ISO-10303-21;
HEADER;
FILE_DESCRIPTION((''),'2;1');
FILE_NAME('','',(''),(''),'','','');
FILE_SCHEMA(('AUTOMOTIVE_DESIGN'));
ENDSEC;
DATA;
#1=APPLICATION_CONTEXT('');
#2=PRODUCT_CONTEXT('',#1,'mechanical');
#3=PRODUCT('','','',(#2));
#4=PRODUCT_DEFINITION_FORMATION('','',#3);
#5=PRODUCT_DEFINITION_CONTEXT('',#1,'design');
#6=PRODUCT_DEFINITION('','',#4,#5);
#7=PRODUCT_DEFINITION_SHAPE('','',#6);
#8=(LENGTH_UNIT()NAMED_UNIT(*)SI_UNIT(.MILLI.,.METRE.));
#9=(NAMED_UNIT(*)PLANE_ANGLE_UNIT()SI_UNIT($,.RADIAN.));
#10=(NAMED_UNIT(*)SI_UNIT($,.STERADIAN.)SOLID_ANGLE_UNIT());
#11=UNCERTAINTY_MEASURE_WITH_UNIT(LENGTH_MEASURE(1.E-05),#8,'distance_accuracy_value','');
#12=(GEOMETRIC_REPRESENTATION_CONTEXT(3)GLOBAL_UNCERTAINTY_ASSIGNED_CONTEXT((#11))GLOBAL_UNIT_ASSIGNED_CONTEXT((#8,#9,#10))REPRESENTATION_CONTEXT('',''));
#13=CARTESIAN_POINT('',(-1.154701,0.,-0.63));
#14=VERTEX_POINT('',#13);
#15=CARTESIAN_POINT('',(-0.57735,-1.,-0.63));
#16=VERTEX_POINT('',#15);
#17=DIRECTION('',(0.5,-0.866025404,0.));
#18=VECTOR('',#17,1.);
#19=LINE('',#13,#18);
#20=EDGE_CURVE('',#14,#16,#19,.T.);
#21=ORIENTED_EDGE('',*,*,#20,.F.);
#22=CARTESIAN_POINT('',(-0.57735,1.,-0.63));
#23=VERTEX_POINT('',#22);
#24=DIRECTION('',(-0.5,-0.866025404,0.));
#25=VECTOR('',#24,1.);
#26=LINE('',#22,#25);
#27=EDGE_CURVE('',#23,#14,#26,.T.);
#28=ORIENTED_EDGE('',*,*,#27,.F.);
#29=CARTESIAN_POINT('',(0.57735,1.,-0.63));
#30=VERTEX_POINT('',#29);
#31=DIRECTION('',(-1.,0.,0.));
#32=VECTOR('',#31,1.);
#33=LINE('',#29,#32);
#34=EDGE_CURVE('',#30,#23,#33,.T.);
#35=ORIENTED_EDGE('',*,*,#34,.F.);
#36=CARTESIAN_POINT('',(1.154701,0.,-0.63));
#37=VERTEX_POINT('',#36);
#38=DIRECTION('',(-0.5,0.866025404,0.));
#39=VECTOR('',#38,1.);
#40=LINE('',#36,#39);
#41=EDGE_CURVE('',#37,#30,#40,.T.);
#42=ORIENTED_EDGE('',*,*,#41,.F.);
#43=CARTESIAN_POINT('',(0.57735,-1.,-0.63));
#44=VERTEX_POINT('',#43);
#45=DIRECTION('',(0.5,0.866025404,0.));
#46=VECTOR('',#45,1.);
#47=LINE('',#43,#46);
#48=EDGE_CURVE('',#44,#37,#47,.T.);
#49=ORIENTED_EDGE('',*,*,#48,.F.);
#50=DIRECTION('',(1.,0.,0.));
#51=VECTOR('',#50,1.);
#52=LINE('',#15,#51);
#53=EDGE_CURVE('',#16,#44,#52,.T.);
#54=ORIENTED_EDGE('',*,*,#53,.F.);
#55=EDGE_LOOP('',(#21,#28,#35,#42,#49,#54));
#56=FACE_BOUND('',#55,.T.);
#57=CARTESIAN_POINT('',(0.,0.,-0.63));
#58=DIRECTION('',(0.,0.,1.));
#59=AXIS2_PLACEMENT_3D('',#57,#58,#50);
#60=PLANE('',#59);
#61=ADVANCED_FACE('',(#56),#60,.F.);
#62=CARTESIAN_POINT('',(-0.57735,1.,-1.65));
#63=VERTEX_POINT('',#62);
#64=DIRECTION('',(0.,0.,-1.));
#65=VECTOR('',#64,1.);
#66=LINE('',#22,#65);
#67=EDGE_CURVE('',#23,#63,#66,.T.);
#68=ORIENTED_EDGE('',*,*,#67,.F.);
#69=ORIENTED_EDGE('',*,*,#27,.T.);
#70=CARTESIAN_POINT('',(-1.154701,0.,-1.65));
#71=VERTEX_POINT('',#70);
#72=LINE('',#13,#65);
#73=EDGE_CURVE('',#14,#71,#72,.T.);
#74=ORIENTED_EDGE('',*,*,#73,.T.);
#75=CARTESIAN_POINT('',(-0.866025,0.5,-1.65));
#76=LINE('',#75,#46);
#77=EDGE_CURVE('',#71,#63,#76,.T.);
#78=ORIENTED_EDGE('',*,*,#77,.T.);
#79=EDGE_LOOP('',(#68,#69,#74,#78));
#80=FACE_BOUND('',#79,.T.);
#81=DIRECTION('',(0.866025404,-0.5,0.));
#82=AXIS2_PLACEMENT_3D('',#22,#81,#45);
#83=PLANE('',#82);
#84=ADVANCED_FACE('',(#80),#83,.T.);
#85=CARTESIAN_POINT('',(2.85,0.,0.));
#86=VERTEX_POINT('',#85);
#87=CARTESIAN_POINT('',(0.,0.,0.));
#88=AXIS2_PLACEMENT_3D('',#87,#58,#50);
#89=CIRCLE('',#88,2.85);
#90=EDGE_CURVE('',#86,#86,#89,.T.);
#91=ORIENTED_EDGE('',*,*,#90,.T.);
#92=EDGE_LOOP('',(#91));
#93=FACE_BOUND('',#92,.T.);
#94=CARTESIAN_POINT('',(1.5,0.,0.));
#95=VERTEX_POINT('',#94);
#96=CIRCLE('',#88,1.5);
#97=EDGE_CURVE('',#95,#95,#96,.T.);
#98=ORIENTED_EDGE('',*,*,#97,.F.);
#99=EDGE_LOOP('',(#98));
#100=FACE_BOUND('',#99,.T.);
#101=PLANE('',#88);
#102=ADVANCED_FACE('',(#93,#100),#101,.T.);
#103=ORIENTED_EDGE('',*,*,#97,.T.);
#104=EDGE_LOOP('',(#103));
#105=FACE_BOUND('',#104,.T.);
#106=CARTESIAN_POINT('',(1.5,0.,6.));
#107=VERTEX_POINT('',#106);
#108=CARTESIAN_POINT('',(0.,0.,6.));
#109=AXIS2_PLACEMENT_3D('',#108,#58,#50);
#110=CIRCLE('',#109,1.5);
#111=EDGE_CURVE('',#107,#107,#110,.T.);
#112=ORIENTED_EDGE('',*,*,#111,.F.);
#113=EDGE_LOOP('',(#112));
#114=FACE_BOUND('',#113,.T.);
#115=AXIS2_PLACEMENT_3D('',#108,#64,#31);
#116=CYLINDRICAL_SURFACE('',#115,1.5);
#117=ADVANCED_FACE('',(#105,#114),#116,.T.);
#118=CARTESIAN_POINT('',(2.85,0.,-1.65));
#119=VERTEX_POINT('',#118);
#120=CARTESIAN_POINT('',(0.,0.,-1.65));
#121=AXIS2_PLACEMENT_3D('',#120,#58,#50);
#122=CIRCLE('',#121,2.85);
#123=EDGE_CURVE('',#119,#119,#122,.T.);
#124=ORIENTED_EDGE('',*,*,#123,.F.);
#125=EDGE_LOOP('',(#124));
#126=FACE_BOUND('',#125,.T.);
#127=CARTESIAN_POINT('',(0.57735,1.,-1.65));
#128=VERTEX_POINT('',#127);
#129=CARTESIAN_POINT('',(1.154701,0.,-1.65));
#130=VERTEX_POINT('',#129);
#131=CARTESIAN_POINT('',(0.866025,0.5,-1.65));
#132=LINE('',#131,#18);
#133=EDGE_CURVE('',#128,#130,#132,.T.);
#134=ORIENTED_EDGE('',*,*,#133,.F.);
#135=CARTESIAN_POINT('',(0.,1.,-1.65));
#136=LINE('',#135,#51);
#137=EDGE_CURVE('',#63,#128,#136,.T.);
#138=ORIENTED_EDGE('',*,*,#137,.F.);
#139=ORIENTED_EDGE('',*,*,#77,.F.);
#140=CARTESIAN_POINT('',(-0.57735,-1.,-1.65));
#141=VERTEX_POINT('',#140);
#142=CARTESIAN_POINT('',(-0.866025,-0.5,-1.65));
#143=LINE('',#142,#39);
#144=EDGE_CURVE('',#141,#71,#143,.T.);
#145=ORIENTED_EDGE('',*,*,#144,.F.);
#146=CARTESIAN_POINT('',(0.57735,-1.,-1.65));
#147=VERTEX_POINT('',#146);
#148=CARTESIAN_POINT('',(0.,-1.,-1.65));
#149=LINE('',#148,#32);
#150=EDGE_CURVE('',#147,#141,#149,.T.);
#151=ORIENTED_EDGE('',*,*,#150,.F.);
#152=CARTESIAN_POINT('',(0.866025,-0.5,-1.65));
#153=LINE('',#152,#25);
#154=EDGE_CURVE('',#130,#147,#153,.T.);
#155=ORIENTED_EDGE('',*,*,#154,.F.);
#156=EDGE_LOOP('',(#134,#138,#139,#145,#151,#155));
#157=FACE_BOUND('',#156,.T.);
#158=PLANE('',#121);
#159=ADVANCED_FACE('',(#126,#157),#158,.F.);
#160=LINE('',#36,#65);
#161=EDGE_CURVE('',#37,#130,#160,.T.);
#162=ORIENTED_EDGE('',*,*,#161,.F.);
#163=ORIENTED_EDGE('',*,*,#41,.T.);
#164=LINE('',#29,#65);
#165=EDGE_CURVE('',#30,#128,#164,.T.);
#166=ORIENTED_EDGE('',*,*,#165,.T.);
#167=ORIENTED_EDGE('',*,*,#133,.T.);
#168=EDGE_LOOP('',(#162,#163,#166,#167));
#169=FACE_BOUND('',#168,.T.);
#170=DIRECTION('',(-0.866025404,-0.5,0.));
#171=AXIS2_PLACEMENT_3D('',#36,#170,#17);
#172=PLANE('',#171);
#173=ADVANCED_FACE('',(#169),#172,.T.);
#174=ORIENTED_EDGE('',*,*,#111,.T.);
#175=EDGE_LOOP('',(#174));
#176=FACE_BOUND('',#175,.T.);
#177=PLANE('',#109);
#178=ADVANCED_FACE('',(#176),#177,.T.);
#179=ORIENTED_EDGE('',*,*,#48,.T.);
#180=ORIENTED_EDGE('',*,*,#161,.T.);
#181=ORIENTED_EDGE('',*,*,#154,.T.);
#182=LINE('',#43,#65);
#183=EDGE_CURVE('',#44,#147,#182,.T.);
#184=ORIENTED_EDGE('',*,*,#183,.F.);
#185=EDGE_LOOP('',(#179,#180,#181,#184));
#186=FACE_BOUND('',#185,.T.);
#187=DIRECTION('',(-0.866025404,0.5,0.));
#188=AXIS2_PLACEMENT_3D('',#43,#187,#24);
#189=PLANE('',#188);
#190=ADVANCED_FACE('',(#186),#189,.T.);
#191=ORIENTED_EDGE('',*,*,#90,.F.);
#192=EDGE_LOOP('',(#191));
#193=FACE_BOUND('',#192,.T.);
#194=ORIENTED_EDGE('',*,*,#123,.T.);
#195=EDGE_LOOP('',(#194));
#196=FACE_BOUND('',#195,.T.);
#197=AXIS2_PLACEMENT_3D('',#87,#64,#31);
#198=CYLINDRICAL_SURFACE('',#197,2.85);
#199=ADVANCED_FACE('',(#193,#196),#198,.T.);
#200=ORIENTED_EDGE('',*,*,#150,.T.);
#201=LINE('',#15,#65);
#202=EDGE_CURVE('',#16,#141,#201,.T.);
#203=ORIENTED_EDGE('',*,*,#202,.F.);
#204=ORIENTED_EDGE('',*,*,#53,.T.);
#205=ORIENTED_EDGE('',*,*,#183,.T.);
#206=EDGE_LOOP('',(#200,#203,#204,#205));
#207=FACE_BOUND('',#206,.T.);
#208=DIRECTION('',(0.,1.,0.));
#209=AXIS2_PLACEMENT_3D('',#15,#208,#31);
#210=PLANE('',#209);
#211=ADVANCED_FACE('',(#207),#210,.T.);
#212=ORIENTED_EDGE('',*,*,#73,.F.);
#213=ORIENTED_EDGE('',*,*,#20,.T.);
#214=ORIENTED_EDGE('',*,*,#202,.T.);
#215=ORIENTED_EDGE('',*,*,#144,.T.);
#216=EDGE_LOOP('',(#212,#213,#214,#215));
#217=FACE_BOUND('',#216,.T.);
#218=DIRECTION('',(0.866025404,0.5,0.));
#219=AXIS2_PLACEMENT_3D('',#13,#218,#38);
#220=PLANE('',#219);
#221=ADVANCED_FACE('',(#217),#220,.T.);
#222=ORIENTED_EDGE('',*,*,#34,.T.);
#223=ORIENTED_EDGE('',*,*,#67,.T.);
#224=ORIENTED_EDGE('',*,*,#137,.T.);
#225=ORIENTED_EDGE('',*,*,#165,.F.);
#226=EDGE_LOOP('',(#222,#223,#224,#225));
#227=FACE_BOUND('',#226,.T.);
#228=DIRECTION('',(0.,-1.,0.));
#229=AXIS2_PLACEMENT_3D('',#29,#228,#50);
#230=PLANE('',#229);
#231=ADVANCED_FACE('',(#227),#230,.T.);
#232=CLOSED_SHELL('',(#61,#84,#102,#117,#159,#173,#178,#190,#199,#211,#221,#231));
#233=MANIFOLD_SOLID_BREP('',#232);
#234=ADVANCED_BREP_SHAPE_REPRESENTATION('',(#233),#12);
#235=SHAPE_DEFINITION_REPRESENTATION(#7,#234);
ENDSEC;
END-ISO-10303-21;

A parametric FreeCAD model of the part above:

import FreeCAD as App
import Part
import Sketcher

V = App.Vector
Q = App.Units.Quantity

doc = App.newDocument("Part")
body = doc.addObject("PartDesign::Body", "Body")

sketch1 = body.newObject("Sketcher::SketchObject", "Sketch")
sketch1.AttachmentSupport = (doc.getObject("XY_Plane"), [""])
sketch1.MapMode = "FlatFace"
sketch1.AttachmentOffset = App.Placement(V(0, 0, -1.65), App.Rotation())
sketch1.addGeometry(Part.Circle(V(0, 0, 0), V(0, 0, 1), 2.9), False)
sketch1.addConstraint([
    Sketcher.Constraint("Coincident", 0, 3, -1, 1),
    Sketcher.Constraint("Diameter", 0, 5.7),
])
pad1 = body.newObject("PartDesign::Pad", "Pad")
pad1.Profile = sketch1
pad1.Length = 1.65

sketch2 = body.newObject("Sketcher::SketchObject", "Sketch001")
sketch2.AttachmentSupport = (doc.getObject("XY_Plane"), [""])
sketch2.MapMode = "FlatFace"
sketch2.addGeometry(Part.Circle(V(0, 0, 0), V(0, 0, 1), 1.5), False)
sketch2.addConstraint([
    Sketcher.Constraint("Coincident", 0, 3, -1, 1),
    Sketcher.Constraint("Diameter", 0, 3.0),
])
pad2 = body.newObject("PartDesign::Pad", "Pad001")
pad2.Profile = sketch2
pad2.Length = 6

sketch3 = body.newObject("Sketcher::SketchObject", "Sketch002")
sketch3.AttachmentSupport = (doc.getObject("XY_Plane"), [""])
sketch3.MapMode = "FlatFace"
sketch3.AttachmentOffset = App.Placement(V(0, 0, -1.75), App.Rotation())
sketch3.addGeometry([
    Part.LineSegment(V(1.2, 0, 0), V(0.6, 1, 0)),
    Part.LineSegment(V(0.6, 1, 0), V(-0.6, 1, 0)),
    Part.LineSegment(V(-0.6, 1, 0), V(-1.2, 0, 0)),
    Part.LineSegment(V(-1.2, 0, 0), V(-0.6, -1, 0)),
    Part.LineSegment(V(-0.6, -1, 0), V(0.6, -1, 0)),
    Part.LineSegment(V(0.6, -1, 0), V(1.2, 0, 0)),
], False)
sketch3.addConstraint([
    Sketcher.Constraint("Coincident", 0, 2, 1, 1),
    Sketcher.Constraint("Coincident", 1, 2, 2, 1),
    Sketcher.Constraint("Coincident", 2, 2, 3, 1),
    Sketcher.Constraint("Coincident", 3, 2, 4, 1),
    Sketcher.Constraint("Coincident", 4, 2, 5, 1),
    Sketcher.Constraint("Coincident", 5, 2, 0, 1),
    Sketcher.Constraint("Horizontal", 1),
    Sketcher.Constraint("Horizontal", 4),
    Sketcher.Constraint("Symmetric", 0, 2, 3, 2, -1, 1),
    Sketcher.Constraint("Symmetric", 2, 2, 5, 2, -1, 1),
    Sketcher.Constraint("PointOnObject", 2, 2, -1),
    Sketcher.Constraint("Parallel", 2, 5),
    Sketcher.Constraint("Vertical", 1, 2, 3, 2),
    Sketcher.Constraint("Angle", 0, Q("120 deg")),
    Sketcher.Constraint("DistanceY", -1, 1, 0, 2, 1.0),
    Sketcher.Constraint("DistanceX", 1, 2, 1, 1, 1.154701),
])
pocket1 = body.newObject("PartDesign::Pocket", "Pocket")
pocket1.Profile = sketch3
pocket1.Length = 1.12
pocket1.Reversed = True

doc.recompute()
